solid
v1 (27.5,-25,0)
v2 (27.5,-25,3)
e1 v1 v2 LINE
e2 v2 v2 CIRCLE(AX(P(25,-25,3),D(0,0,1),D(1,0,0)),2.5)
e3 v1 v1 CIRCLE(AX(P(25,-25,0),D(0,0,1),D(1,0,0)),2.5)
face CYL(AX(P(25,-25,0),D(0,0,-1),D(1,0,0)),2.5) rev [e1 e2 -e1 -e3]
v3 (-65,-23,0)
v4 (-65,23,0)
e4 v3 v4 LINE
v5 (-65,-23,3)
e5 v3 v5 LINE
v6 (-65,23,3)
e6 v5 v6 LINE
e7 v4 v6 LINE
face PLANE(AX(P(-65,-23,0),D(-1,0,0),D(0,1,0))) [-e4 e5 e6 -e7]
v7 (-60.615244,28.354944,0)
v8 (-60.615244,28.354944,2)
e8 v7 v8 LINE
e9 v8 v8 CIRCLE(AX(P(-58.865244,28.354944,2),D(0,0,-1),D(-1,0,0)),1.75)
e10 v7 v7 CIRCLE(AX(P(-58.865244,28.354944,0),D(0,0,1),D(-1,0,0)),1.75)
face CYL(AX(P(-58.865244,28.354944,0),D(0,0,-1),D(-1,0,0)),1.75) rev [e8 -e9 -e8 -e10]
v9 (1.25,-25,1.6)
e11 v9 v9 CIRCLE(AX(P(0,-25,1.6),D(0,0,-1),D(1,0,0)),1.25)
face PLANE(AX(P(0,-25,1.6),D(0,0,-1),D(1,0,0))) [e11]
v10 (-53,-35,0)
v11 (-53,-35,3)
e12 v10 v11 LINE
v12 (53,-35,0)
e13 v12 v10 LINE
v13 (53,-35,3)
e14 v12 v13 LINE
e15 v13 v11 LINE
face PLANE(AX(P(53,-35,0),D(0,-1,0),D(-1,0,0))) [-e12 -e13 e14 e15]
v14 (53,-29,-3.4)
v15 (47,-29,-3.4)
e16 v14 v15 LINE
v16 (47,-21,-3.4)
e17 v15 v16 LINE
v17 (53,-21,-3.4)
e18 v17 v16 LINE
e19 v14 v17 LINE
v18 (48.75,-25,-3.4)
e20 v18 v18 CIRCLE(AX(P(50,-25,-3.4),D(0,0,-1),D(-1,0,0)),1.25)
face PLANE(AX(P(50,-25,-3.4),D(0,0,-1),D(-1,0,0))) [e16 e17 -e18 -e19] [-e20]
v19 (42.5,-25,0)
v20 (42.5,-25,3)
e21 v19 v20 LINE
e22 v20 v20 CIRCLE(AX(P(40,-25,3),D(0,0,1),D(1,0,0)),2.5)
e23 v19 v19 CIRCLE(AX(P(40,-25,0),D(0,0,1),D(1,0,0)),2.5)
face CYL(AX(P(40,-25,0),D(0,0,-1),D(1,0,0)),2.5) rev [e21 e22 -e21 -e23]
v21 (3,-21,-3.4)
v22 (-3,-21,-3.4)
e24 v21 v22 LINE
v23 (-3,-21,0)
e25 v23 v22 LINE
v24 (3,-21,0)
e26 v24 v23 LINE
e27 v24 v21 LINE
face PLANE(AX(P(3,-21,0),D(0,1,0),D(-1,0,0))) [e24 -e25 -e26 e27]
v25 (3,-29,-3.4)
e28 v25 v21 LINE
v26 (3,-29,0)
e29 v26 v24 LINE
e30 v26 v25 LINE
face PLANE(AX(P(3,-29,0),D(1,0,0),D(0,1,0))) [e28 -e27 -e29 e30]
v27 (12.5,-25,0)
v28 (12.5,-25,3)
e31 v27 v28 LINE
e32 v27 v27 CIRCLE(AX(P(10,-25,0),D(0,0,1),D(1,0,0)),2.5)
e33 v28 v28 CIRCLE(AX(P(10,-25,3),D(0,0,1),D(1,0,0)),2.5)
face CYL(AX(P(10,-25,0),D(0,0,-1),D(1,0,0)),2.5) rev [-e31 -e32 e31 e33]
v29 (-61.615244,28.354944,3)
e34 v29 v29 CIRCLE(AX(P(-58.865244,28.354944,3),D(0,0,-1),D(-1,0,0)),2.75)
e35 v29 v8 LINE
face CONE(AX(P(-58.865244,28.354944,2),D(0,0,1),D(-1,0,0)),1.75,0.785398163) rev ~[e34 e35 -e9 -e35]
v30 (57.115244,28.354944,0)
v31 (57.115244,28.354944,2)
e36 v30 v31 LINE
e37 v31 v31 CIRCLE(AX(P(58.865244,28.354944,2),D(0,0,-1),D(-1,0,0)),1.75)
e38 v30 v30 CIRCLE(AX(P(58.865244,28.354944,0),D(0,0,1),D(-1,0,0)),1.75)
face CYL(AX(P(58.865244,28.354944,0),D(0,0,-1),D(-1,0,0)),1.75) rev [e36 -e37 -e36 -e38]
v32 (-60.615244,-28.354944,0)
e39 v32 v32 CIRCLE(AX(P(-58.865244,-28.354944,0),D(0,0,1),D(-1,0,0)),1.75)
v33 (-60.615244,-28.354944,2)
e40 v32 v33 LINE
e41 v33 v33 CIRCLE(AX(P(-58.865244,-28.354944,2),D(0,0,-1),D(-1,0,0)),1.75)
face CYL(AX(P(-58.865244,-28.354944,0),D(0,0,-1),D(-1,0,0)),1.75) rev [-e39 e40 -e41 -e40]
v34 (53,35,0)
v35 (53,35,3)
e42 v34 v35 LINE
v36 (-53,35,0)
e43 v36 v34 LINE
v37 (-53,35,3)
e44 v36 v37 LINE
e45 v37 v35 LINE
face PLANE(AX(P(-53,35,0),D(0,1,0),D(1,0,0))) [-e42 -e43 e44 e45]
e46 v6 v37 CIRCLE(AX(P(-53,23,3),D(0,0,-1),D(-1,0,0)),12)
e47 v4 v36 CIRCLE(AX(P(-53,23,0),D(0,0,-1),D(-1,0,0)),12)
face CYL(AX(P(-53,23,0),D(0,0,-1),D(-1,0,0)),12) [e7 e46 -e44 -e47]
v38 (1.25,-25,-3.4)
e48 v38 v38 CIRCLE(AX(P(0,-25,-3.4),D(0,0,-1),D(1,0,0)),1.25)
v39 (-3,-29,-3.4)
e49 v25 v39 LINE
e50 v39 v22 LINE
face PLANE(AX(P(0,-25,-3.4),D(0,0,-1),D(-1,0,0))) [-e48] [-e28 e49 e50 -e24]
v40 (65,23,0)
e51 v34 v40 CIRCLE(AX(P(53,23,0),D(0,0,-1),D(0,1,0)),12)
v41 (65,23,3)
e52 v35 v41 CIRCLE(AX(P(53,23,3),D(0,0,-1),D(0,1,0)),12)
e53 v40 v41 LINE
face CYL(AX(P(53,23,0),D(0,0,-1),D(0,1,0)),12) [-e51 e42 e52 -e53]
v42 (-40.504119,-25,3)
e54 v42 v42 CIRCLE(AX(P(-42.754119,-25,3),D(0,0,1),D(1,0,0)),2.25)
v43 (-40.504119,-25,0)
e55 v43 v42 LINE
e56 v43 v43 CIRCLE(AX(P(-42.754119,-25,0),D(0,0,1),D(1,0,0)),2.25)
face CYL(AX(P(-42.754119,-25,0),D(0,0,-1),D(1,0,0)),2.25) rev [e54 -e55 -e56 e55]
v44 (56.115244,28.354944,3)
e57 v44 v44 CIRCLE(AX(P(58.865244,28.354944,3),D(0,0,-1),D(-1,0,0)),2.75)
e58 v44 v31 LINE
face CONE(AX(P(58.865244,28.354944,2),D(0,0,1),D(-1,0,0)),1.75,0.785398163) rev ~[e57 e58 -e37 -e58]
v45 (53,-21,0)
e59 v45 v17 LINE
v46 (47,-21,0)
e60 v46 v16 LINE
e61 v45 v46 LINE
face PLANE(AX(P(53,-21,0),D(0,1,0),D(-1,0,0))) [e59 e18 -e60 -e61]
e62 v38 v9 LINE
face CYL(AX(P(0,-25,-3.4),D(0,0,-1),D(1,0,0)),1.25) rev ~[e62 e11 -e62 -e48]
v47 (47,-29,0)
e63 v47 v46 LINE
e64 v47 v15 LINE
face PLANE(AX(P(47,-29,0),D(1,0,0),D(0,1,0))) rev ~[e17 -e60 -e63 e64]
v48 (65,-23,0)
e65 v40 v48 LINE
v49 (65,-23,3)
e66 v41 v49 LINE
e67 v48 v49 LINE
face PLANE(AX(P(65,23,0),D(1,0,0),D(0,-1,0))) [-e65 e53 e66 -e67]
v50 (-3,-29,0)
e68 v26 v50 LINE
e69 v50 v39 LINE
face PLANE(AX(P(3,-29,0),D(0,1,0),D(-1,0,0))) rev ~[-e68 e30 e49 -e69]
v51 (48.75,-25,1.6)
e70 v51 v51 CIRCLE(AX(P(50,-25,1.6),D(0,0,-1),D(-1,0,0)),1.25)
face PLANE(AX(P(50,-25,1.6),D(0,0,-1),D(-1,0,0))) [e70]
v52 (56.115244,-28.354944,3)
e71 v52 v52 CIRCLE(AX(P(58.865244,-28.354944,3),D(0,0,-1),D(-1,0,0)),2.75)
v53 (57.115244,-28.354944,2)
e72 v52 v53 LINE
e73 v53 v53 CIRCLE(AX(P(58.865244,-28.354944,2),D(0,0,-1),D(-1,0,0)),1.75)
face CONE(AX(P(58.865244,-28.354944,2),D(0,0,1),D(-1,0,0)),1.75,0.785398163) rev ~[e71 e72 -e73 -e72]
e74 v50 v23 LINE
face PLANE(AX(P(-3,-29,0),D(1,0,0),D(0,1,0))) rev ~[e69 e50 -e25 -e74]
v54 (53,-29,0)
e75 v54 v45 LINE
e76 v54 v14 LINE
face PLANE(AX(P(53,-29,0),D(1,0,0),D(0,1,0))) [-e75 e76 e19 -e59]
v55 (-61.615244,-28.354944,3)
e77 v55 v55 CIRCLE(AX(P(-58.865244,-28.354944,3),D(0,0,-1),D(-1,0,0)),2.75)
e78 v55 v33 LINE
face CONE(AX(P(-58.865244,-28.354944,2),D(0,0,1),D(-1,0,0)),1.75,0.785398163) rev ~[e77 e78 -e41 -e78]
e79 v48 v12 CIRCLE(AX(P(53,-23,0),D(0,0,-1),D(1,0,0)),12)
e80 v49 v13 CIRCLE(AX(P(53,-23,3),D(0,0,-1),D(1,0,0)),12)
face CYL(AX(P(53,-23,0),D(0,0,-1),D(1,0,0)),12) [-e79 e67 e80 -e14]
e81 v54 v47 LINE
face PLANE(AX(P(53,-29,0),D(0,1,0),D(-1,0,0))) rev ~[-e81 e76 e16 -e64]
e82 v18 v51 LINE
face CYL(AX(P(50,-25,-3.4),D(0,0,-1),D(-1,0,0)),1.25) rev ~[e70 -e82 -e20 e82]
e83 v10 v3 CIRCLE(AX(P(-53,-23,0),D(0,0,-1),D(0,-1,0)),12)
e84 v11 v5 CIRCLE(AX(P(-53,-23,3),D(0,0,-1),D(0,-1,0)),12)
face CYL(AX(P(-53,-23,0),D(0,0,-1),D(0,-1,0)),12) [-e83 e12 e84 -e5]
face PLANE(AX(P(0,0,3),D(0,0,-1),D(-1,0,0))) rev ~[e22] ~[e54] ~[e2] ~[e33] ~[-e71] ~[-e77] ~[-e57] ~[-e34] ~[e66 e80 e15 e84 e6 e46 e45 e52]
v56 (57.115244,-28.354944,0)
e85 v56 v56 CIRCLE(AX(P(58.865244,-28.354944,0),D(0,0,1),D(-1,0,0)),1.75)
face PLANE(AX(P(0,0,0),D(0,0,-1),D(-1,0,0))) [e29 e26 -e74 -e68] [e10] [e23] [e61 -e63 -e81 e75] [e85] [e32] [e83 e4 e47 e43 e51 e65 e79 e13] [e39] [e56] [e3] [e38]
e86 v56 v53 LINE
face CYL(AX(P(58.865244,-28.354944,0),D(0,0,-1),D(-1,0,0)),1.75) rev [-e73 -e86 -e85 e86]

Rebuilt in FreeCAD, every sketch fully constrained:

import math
import FreeCAD as App
import Part
import Sketcher
Q = App.Units.Quantity


def edges_at(feature, points):
    """Names of the edges that pass closest to the given points."""
    edges = feature.Shape.Edges
    near = lambda p: min(range(len(edges)), key=lambda i: edges[i].distToShape(Part.Vertex(*p))[0])
    return sorted({f"Edge{near(p) + 1}" for p in points})


def add_polygon(sketch, points):
    """Adds a closed chain of lines whose ends are joined by coincident constraints."""
    first, n = sketch.GeometryCount, len(points)
    for a, b in zip(points, points[1:] + points[:1]):
        sketch.addGeometry(Part.LineSegment(App.Vector(*a, 0), App.Vector(*b, 0)), False)
    for i in range(n):
        sketch.addConstraint(Sketcher.Constraint("Coincident", first + i, 2, first + (i + 1) % n, 1))

doc = App.newDocument("Part")
body = doc.addObject("PartDesign::Body", "Body")

sketch1 = doc.addObject("Sketcher::SketchObject", "Sketch")
body.addObject(sketch1)
sketch1.AttachmentSupport = (doc.XY_Plane, [""])
sketch1.MapMode = "FlatFace"
sketch1.addGeometry([
    Part.LineSegment(App.Vector(53, 35, 0), App.Vector(-53, 35, 0)),
    Part.ArcOfCircle(Part.Circle(App.Vector(-53, 23, 0), App.Vector(0, 0, 1), 12), math.radians(90), math.radians(180)),
    Part.LineSegment(App.Vector(-65, 23, 0), App.Vector(-65, -23, 0)),
    Part.ArcOfCircle(Part.Circle(App.Vector(-53, -23, 0), App.Vector(0, 0, 1), 12), math.radians(-180), math.radians(-90)),
    Part.LineSegment(App.Vector(-53, -35, 0), App.Vector(53, -35, 0)),
    Part.ArcOfCircle(Part.Circle(App.Vector(53, -23, 0), App.Vector(0, 0, 1), 12), math.radians(-90), math.radians(0)),
    Part.LineSegment(App.Vector(65, -23, 0), App.Vector(65, 23, 0)),
    Part.ArcOfCircle(Part.Circle(App.Vector(53, 23, 0), App.Vector(0, 0, 1), 12), math.radians(0), math.radians(90)),
    Part.Circle(App.Vector(40, -25, 0), App.Vector(0, 0, 1), 2.5),
    Part.Circle(App.Vector(25, -25, 0), App.Vector(0, 0, 1), 2.5),
    Part.Circle(App.Vector(10, -25, 0), App.Vector(0, 0, 1), 2.5),
    Part.Circle(App.Vector(-42.8, -25, 0), App.Vector(0, 0, 1), 2.2),
], False)
sketch1.addConstraint([
    Sketcher.Constraint("Tangent", 0, 2, 1, 1),
    Sketcher.Constraint("Tangent", 1, 2, 2, 1),
    Sketcher.Constraint("Tangent", 2, 2, 3, 1),
    Sketcher.Constraint("Tangent", 3, 2, 4, 1),
    Sketcher.Constraint("Tangent", 4, 2, 5, 1),
    Sketcher.Constraint("Tangent", 5, 2, 6, 1),
    Sketcher.Constraint("Tangent", 6, 2, 7, 1),
    Sketcher.Constraint("Tangent", 7, 2, 0, 1),
    Sketcher.Constraint("Horizontal", 0),
    Sketcher.Constraint("Vertical", 2),
    Sketcher.Constraint("Horizontal", 4),
    Sketcher.Constraint("Vertical", 6),
    Sketcher.Constraint("Equal", 1, 3),
    Sketcher.Constraint("Equal", 3, 5),
    Sketcher.Constraint("Equal", 5, 7),
    Sketcher.Constraint("Equal", 8, 9),
    Sketcher.Constraint("Equal", 9, 10),
    Sketcher.Constraint("Symmetric", 1, 3, 5, 3, -1, 1),
    Sketcher.Constraint("Horizontal", 8, 3, 9, 3),
    Sketcher.Constraint("Horizontal", 9, 3, 10, 3),
    Sketcher.Constraint("Horizontal", 10, 3, 11, 3),
    Sketcher.Constraint("Diameter", 8, Q("5 mm")),
    Sketcher.Constraint("Radius", 1, Q("12 mm")),
    Sketcher.Constraint("Diameter", 11, Q("4.5 mm")),
    Sketcher.Constraint("DistanceX", 0, 2, 0, 1, Q("106 mm")),
    Sketcher.Constraint("DistanceY", 2, 2, 2, 1, Q("46 mm")),
    Sketcher.Constraint("DistanceX", -1, 1, 8, 3, Q("40 mm")),
    Sketcher.Constraint("DistanceY", 8, 3, -1, 1, Q("25 mm")),
    Sketcher.Constraint("DistanceX", -1, 1, 9, 3, Q("25 mm")),
    Sketcher.Constraint("DistanceX", -1, 1, 10, 3, Q("10 mm")),
    Sketcher.Constraint("DistanceX", 11, 3, -1, 1, Q("42.754119 mm")),
])
pad1 = doc.addObject("PartDesign::Pad", "Pad")
body.addObject(pad1)
pad1.Profile = sketch1
pad1.Length = 3

sketch2 = doc.addObject("Sketcher::SketchObject", "Sketch001")
body.addObject(sketch2)
sketch2.AttachmentSupport = (doc.XY_Plane, [""])
sketch2.MapMode = "FlatFace"
add_polygon(sketch2, [(3, -21), (3, -29), (-3, -29), (-3, -21)])
add_polygon(sketch2, [(53, -21), (53, -29), (47, -29), (47, -21)])
sketch2.addConstraint([
    Sketcher.Constraint("Vertical", 0),
    Sketcher.Constraint("Horizontal", 1),
    Sketcher.Constraint("Vertical", 2),
    Sketcher.Constraint("Horizontal", 3),
    Sketcher.Constraint("Vertical", 4),
    Sketcher.Constraint("Horizontal", 5),
    Sketcher.Constraint("Vertical", 6),
    Sketcher.Constraint("Horizontal", 7),
    Sketcher.Constraint("Horizontal", 1, 2, 4, 2),
    Sketcher.Constraint("Horizontal", 3, 2, 6, 2),
    Sketcher.Constraint("Equal", 3, 5),
    Sketcher.Constraint("DistanceX", 1, 2, 1, 1, Q("6 mm")),
    Sketcher.Constraint("DistanceY", 0, 2, 0, 1, Q("8 mm")),
    Sketcher.Constraint("DistanceX", -1, 1, 0, 2, Q("3 mm")),
    Sketcher.Constraint("DistanceY", 0, 2, -1, 1, Q("29 mm")),
    Sketcher.Constraint("DistanceX", -1, 1, 4, 2, Q("53 mm")),
])
pad2 = doc.addObject("PartDesign::Pad", "Pad001")
body.addObject(pad2)
pad2.Profile = sketch2
pad2.Length = 3.4
pad2.Reversed = True

sketch3 = doc.addObject("Sketcher::SketchObject", "Sketch002")
body.addObject(sketch3)
sketch3.AttachmentSupport = (doc.XY_Plane, [""])
sketch3.MapMode = "FlatFace"
sketch3.AttachmentOffset = App.Placement(App.Vector(0, 0, -3.4), App.Rotation())
sketch3.addGeometry([
    Part.Circle(App.Vector(50, -25, 0), App.Vector(0, 0, 1), 1.2),
    Part.Circle(App.Vector(0, -25, 0), App.Vector(0, 0, 1), 1.2),
], False)
sketch3.addConstraint([
    Sketcher.Constraint("Equal", 0, 1),
    Sketcher.Constraint("PointOnObject", 1, 3, -2),
    Sketcher.Constraint("Horizontal", 0, 3, 1, 3),
    Sketcher.Constraint("Diameter", 0, Q("2.5 mm")),
    Sketcher.Constraint("DistanceX", -1, 1, 0, 3, Q("50 mm")),
    Sketcher.Constraint("DistanceY", 0, 3, -1, 1, Q("25 mm")),
])
pocket1 = doc.addObject("PartDesign::Pocket", "Pocket")
body.addObject(pocket1)
pocket1.Profile = sketch3
pocket1.Length = 5
pocket1.Reversed = True

sketch4 = doc.addObject("Sketcher::SketchObject", "Sketch003")
body.addObject(sketch4)
sketch4.AttachmentSupport = (doc.XY_Plane, [""])
sketch4.MapMode = "FlatFace"
sketch4.AttachmentOffset = App.Placement(App.Vector(0, 0, 3), App.Rotation())
sketch4.addGeometry([
    Part.Circle(App.Vector(-58.9, 28.4, 0), App.Vector(0, 0, 1), 1.8),
    Part.Circle(App.Vector(-58.9, -28.4, 0), App.Vector(0, 0, 1), 1.8),
    Part.Circle(App.Vector(58.9, 28.4, 0), App.Vector(0, 0, 1), 1.8),
    Part.Circle(App.Vector(58.9, -28.4, 0), App.Vector(0, 0, 1), 1.8),
], False)
sketch4.addConstraint([
    Sketcher.Constraint("Equal", 0, 1),
    Sketcher.Constraint("Equal", 1, 2),
    Sketcher.Constraint("Equal", 2, 3),
    Sketcher.Constraint("Symmetric", 1, 3, 2, 3, -1, 1),
    Sketcher.Constraint("Symmetric", 0, 3, 3, 3, -1, 1),
    Sketcher.Constraint("Symmetric", 0, 3, 2, 3, -2),
    Sketcher.Constraint("Diameter", 0, Q("3.5 mm")),
    Sketcher.Constraint("DistanceX", 0, 3, -1, 1, Q("58.865244 mm")),
    Sketcher.Constraint("DistanceY", -1, 1, 0, 3, Q("28.354944 mm")),
])
pocket2 = doc.addObject("PartDesign::Pocket", "Pocket001")
body.addObject(pocket2)
pocket2.Profile = sketch4
pocket2.Type = "ThroughAll"
pocket2.Midplane = True
doc.recompute()

chamfer = doc.addObject("PartDesign::Chamfer", "Chamfer")
body.addObject(chamfer)
chamfer.Base = (pocket2, edges_at(pocket2, [
    (-57.115, -28.355, 3),
    (60.615, 28.355, 3),
    (60.615, -28.355, 3),
    (-57.115, 28.355, 3),
]))
chamfer.Size = 1

doc.recompute()
